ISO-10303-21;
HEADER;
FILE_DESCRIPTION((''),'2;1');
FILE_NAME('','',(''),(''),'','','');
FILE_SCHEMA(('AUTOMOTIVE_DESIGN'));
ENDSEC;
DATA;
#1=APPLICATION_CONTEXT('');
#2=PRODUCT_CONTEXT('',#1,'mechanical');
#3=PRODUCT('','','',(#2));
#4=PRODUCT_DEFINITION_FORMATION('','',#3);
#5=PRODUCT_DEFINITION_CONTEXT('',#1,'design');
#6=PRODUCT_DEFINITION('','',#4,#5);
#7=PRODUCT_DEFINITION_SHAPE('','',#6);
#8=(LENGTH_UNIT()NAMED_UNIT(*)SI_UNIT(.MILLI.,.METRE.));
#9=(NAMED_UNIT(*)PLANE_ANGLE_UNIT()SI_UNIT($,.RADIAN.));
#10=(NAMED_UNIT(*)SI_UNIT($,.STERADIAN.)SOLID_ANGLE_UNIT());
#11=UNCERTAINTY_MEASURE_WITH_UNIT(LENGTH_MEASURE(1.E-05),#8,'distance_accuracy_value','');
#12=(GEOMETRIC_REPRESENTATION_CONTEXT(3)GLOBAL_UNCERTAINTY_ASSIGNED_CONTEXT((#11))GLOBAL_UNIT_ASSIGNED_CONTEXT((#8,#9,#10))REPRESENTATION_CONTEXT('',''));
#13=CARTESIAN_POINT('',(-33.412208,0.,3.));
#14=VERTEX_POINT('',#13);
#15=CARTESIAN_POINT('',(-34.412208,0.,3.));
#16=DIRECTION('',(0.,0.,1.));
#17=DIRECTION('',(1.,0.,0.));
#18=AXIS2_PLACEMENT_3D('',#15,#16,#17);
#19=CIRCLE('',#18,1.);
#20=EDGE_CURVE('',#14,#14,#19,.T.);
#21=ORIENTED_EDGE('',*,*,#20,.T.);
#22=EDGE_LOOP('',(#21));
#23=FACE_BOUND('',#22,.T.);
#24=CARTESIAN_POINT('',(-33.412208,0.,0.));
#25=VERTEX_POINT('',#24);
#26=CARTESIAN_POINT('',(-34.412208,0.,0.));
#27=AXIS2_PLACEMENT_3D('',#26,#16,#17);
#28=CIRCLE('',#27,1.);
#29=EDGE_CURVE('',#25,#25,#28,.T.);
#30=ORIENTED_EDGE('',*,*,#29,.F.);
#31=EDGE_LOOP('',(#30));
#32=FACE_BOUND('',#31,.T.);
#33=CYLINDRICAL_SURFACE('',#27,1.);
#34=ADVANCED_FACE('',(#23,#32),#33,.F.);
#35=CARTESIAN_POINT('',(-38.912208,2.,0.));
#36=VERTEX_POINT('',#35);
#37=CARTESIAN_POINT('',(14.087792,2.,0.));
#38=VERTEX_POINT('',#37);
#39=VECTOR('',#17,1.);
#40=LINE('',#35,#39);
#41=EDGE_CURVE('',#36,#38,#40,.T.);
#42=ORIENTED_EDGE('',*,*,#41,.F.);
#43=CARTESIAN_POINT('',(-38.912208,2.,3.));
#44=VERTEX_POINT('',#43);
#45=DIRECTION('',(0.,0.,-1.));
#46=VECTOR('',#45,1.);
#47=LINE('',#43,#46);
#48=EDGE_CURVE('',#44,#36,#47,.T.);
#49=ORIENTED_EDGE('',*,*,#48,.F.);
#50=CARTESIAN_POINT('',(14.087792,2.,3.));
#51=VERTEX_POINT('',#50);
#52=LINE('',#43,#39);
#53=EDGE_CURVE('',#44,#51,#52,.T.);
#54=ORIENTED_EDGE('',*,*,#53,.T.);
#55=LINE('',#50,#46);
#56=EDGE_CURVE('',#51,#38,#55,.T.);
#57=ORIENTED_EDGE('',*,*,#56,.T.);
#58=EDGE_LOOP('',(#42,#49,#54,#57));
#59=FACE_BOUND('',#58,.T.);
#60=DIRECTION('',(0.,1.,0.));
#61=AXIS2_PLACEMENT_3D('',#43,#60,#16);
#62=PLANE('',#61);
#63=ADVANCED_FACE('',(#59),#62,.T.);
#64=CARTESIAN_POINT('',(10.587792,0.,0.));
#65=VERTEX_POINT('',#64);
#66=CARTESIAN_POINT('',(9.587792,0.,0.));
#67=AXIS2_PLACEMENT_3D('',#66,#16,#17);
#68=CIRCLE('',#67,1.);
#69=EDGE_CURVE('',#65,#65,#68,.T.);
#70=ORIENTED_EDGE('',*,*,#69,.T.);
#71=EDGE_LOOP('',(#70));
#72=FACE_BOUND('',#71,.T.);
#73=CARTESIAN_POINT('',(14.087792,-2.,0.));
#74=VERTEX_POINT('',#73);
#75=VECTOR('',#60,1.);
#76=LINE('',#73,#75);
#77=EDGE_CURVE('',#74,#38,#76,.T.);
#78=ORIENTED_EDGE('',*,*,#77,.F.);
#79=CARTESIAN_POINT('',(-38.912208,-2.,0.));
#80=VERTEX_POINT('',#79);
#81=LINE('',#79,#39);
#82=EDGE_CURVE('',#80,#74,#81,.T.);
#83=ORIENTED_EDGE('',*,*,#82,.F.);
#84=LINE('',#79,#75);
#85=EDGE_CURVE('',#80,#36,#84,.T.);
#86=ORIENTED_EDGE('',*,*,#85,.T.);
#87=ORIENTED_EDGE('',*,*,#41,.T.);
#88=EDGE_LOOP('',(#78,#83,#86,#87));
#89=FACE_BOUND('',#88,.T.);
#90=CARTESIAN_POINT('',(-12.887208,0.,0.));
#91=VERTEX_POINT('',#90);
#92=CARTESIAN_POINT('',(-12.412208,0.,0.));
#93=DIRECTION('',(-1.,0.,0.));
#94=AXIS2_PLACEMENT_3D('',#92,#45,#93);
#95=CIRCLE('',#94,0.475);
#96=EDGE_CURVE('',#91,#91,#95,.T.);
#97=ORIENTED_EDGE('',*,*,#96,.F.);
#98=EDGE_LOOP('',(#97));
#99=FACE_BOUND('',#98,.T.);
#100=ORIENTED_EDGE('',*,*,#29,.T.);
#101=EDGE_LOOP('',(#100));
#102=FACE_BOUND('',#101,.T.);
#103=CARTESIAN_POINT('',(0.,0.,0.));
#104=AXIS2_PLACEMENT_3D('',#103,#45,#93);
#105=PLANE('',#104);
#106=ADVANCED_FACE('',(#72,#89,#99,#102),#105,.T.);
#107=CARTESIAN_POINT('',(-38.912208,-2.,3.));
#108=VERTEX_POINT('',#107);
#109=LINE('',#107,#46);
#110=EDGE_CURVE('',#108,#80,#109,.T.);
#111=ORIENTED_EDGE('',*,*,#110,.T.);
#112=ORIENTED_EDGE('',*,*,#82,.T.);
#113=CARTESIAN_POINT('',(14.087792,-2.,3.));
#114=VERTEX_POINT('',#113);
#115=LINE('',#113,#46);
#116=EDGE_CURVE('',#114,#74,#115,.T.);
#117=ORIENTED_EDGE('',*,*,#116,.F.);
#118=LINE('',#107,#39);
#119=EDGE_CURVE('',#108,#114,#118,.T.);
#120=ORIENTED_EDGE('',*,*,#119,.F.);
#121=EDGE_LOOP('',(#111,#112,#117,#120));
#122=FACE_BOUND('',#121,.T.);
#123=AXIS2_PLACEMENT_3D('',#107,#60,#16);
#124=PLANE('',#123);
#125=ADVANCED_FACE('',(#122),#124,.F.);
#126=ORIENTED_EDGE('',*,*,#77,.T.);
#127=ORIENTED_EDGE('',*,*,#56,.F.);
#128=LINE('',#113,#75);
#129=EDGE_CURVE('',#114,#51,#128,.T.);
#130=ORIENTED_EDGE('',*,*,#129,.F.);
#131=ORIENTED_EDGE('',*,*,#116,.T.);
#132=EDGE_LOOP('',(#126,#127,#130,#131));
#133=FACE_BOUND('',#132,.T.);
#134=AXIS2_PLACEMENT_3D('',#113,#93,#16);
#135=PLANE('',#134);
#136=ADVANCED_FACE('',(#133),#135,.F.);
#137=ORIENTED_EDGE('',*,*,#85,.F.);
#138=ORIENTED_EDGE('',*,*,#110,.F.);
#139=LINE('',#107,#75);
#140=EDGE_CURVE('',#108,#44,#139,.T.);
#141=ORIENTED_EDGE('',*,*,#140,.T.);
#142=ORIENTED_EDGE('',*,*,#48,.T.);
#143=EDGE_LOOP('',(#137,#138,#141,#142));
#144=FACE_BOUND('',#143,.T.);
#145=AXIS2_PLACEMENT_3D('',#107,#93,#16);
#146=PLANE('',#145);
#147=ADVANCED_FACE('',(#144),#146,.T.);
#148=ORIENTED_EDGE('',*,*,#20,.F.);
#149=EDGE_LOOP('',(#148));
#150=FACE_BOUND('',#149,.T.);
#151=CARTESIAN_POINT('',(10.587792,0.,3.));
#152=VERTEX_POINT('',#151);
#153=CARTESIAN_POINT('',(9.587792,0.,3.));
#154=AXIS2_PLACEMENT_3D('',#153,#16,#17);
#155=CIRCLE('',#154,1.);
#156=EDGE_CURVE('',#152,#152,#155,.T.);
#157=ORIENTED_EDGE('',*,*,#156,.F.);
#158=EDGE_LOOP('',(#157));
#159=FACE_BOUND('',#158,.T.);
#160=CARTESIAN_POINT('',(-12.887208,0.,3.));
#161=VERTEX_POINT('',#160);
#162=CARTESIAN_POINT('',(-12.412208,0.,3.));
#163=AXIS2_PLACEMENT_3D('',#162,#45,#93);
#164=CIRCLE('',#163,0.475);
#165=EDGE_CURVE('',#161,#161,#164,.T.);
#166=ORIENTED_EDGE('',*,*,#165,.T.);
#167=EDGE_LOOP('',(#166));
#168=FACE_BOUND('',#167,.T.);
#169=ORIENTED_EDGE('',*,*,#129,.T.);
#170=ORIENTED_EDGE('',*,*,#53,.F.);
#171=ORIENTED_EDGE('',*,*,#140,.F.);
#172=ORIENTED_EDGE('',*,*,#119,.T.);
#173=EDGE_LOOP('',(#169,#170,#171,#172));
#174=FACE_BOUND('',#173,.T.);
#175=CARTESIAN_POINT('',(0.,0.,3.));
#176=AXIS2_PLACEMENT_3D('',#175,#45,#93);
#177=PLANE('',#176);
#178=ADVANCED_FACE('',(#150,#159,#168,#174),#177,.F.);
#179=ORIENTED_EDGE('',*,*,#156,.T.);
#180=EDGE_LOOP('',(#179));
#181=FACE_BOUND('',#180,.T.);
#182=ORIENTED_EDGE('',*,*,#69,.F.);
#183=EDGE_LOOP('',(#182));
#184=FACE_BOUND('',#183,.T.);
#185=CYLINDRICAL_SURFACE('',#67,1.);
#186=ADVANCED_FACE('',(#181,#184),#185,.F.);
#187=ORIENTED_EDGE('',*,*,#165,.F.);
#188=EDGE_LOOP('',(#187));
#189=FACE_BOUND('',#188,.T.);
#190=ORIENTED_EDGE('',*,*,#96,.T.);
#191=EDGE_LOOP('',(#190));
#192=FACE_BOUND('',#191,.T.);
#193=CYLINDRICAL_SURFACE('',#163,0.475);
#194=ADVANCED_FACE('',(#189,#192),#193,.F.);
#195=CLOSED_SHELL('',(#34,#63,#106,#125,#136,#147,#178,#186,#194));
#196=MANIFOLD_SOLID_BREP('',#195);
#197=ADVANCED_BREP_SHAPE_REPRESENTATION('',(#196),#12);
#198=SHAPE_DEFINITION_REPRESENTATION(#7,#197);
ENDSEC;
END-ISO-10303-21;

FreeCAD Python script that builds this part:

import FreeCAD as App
import Part
import Sketcher

V = App.Vector


def add_polygon(sketch, points):
    """Adds a closed chain of lines whose ends are joined by coincident constraints."""
    first, n = sketch.GeometryCount, len(points)
    for a, b in zip(points, points[1:] + points[:1]):
        sketch.addGeometry(Part.LineSegment(App.Vector(*a, 0), App.Vector(*b, 0)), False)
    for i in range(n):
        sketch.addConstraint(Sketcher.Constraint("Coincident", first + i, 2, first + (i + 1) % n, 1))

doc = App.newDocument("Part")
body = doc.addObject("PartDesign::Body", "Body")

sketch1 = doc.addObject("Sketcher::SketchObject", "Sketch")
body.addObject(sketch1)
sketch1.AttachmentSupport = (doc.XY_Plane, [""])
sketch1.MapMode = "FlatFace"
add_polygon(sketch1, [(-38.9, 2), (-38.9, -2), (14.1, -2), (14.1, 2)])
sketch1.addConstraint(Sketcher.Constraint("Vertical", 0))
sketch1.addConstraint(Sketcher.Constraint("Horizontal", 1))
sketch1.addConstraint(Sketcher.Constraint("Vertical", 2))
sketch1.addConstraint(Sketcher.Constraint("Horizontal", 3))
sketch1.addConstraint(Sketcher.Constraint("DistanceX", 1, 1, 1, 2, 53.0))
sketch1.addConstraint(Sketcher.Constraint("DistanceY", 0, 2, 0, 1, 4.0))
sketch1.addConstraint(Sketcher.Constraint("DistanceY", 0, 2, -1, 1, 2.0))
sketch1.addConstraint(Sketcher.Constraint("DistanceX", 0, 2, -1, 1, 38.912208))
pad1 = doc.addObject("PartDesign::Pad", "Pad")
body.addObject(pad1)
pad1.Profile = sketch1
pad1.Length = 3

sketch2 = doc.addObject("Sketcher::SketchObject", "Sketch001")
body.addObject(sketch2)
sketch2.AttachmentSupport = (doc.XY_Plane, [""])
sketch2.MapMode = "FlatFace"
sketch2.AttachmentOffset = App.Placement(V(0, 0, 3), App.Rotation())
sketch2.addGeometry(Part.Circle(V(-34.4, 0, 0), V(0, 0, 1), 1), False)
sketch2.addGeometry(Part.Circle(V(9.6, 0, 0), V(0, 0, 1), 1), False)
sketch2.addConstraint(Sketcher.Constraint("Equal", 0, 1))
sketch2.addConstraint(Sketcher.Constraint("PointOnObject", 0, 3, -1))
sketch2.addConstraint(Sketcher.Constraint("PointOnObject", 1, 3, -1))
sketch2.addConstraint(Sketcher.Constraint("Diameter", 0, 2.0))
sketch2.addConstraint(Sketcher.Constraint("DistanceX", 0, 3, 1, 3, 44.0))
sketch2.addConstraint(Sketcher.Constraint("DistanceX", 0, 3, -1, 1, 34.412208))
pocket1 = doc.addObject("PartDesign::Pocket", "Pocket")
body.addObject(pocket1)
pocket1.Profile = sketch2
pocket1.Length = 3

sketch3 = doc.addObject("Sketcher::SketchObject", "Sketch002")
body.addObject(sketch3)
sketch3.AttachmentSupport = (doc.XY_Plane, [""])
sketch3.MapMode = "FlatFace"
sketch3.addGeometry(Part.Circle(V(-12.41, 0, 0), V(0, 0, 1), 0.47), False)
sketch3.addConstraint(Sketcher.Constraint("PointOnObject", 0, 3, -1))
sketch3.addConstraint(Sketcher.Constraint("Diameter", 0, 0.95))
sketch3.addConstraint(Sketcher.Constraint("DistanceX", 0, 3, -1, 1, 12.412208))
pocket2 = doc.addObject("PartDesign::Pocket", "Pocket001")
body.addObject(pocket2)
pocket2.Profile = sketch3
pocket2.Length = 3
pocket2.Reversed = True

doc.recompute()
